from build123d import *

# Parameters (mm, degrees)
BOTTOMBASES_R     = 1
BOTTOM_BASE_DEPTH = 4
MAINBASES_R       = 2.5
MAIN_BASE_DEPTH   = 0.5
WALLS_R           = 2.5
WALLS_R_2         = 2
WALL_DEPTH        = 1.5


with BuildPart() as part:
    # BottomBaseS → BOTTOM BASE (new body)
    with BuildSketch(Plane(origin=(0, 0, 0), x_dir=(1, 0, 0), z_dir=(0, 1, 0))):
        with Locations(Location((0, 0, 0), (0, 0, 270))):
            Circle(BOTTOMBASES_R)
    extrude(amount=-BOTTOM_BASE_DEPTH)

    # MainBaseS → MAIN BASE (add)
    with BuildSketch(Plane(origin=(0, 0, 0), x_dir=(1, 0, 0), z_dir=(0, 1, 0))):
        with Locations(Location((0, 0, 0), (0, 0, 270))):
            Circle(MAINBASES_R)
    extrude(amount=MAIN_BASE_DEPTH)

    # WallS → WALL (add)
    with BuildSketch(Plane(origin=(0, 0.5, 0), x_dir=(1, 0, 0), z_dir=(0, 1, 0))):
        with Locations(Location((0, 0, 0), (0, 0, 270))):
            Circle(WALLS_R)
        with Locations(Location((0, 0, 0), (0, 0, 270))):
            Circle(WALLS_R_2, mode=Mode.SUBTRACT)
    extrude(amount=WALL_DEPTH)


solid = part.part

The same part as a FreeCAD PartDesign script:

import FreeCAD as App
import Part
import Sketcher

V = App.Vector
Q = App.Units.Quantity

doc = App.newDocument("Part")
params = doc.addObject("Spreadsheet::Sheet", "Params")
for row, (alias, value) in enumerate([
    ("sketch1_diameter", "2 mm"),
    ("pad1_length", "4 mm"),
    ("sketch2_diameter", "5 mm"),
    ("pad2_length", "0.5 mm"),
    ("sketch3_diameter", "5 mm"),
    ("sketch3_diameter2", "4 mm"),
    ("pad3_length", "1.5 mm"),
], start=1):
    params.set(f"A{row}", alias)
    params.set(f"B{row}", "=" + value)
    params.setAlias(f"B{row}", alias)

body = doc.addObject("PartDesign::Body", "Body")

sketch1 = doc.addObject("Sketcher::SketchObject", "Sketch")
body.addObject(sketch1)
sketch1.AttachmentSupport = (doc.XZ_Plane, [""])
sketch1.MapMode = "FlatFace"
sketch1.addGeometry(Part.Circle(V(0, 0, 0), V(0, 0, 1), 1), False)
sketch1.addConstraint(Sketcher.Constraint("Coincident", 0, 3, -1, 1))
sketch1.addConstraint(Sketcher.Constraint("Diameter", 0, Q("2 mm")))
sketch1.setExpression("Constraints[1]", "Params.sketch1_diameter")
pad1 = doc.addObject("PartDesign::Pad", "Pad")
body.addObject(pad1)
pad1.Profile = sketch1
pad1.setExpression("Length", "Params.pad1_length")

sketch2 = doc.addObject("Sketcher::SketchObject", "Sketch001")
body.addObject(sketch2)
sketch2.AttachmentSupport = (doc.XZ_Plane, [""])
sketch2.MapMode = "FlatFace"
sketch2.addGeometry(Part.Circle(V(0, 0, 0), V(0, 0, 1), 2.5), False)
sketch2.addConstraint(Sketcher.Constraint("Coincident", 0, 3, -1, 1))
sketch2.addConstraint(Sketcher.Constraint("Diameter", 0, Q("5 mm")))
sketch2.setExpression("Constraints[1]", "Params.sketch2_diameter")
pad2 = doc.addObject("PartDesign::Pad", "Pad001")
body.addObject(pad2)
pad2.Profile = sketch2
pad2.setExpression("Length", "Params.pad2_length")
pad2.Reversed = True

sketch3 = doc.addObject("Sketcher::SketchObject", "Sketch002")
body.addObject(sketch3)
sketch3.AttachmentSupport = (doc.XZ_Plane, [""])
sketch3.MapMode = "FlatFace"
sketch3.AttachmentOffset = App.Placement(V(0, 0, -0.5), App.Rotation())
sketch3.addGeometry(Part.Circle(V(0, 0, 0), V(0, 0, 1), 2.5), False)
sketch3.addGeometry(Part.Circle(V(0, 0, 0), V(0, 0, 1), 2), False)
sketch3.addConstraint(Sketcher.Constraint("Coincident", 0, 3, -1, 1))
sketch3.addConstraint(Sketcher.Constraint("Coincident", 1, 3, -1, 1))
sketch3.addConstraint(Sketcher.Constraint("Diameter", 0, Q("5 mm")))
sketch3.addConstraint(Sketcher.Constraint("Diameter", 1, Q("4 mm")))
sketch3.setExpression("Constraints[2]", "Params.sketch3_diameter")
sketch3.setExpression("Constraints[3]", "Params.sketch3_diameter2")
pad3 = doc.addObject("PartDesign::Pad", "Pad002")
body.addObject(pad3)
pad3.Profile = sketch3
pad3.setExpression("Length", "Params.pad3_length")
pad3.Reversed = True

doc.recompute()
